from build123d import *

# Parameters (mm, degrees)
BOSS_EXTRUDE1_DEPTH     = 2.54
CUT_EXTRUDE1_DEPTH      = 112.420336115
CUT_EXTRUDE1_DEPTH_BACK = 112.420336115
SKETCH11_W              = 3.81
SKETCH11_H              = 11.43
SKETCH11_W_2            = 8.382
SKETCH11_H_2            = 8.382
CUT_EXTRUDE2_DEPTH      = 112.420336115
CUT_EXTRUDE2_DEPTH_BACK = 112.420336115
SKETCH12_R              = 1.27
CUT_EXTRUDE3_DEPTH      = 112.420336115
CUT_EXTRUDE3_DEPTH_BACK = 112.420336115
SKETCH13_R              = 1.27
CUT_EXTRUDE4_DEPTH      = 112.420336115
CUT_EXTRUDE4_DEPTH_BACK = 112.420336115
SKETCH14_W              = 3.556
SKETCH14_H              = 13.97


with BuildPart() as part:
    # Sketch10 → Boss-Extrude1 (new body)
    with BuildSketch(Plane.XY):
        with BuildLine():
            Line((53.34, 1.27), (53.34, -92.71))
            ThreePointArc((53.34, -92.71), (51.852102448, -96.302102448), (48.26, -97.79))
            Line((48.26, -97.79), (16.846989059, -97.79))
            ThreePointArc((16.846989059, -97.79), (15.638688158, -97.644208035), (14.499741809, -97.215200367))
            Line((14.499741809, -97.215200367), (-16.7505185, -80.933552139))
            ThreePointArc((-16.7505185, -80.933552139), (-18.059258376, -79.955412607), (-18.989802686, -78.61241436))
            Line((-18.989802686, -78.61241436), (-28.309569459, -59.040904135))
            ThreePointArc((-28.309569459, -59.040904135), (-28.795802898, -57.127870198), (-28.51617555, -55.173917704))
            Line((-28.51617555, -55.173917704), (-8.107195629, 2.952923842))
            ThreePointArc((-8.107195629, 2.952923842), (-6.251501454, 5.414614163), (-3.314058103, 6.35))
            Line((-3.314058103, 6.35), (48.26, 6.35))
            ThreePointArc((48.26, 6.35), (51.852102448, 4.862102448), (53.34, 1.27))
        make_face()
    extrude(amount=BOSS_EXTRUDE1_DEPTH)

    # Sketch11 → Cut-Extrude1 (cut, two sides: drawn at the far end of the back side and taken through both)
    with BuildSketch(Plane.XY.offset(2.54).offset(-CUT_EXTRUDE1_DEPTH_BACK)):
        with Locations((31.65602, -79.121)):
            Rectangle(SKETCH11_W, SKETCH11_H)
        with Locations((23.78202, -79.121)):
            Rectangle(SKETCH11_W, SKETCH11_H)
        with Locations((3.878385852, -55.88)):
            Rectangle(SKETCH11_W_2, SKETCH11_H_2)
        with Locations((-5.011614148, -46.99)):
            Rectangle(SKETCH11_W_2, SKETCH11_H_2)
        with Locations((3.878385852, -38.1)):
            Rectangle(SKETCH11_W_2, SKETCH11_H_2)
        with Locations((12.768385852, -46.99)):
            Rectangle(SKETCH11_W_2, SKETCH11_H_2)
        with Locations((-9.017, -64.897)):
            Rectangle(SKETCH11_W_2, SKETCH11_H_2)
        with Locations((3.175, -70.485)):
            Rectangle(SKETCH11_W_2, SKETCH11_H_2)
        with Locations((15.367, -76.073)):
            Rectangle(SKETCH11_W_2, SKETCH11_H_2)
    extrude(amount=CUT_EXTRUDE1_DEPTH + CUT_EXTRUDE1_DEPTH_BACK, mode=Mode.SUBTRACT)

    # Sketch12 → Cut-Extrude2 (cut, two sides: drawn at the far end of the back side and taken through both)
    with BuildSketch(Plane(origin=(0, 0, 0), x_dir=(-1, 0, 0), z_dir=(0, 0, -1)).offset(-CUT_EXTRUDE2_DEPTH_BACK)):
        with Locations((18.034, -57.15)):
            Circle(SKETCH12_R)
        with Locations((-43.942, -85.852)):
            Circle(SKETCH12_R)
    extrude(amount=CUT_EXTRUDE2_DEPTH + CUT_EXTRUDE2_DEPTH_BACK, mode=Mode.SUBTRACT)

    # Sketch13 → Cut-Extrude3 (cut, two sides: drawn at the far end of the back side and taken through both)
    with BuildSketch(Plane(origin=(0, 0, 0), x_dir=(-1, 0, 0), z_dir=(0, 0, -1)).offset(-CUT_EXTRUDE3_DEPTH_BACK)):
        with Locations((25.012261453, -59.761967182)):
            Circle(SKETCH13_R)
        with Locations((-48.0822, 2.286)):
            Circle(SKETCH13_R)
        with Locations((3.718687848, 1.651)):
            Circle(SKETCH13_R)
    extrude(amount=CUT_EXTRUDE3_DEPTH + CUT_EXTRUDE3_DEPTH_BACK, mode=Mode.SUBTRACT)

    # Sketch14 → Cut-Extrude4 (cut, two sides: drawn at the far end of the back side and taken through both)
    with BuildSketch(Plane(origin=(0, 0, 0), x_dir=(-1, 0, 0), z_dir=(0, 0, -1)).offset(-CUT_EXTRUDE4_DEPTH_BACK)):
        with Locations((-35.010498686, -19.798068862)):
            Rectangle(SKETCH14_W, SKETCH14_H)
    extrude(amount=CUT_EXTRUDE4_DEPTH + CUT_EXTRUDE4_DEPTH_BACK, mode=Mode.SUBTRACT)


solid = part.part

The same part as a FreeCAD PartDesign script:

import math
import FreeCAD as App
import Part
import Sketcher
from FreeCAD import Vector
Q = App.Units.Quantity


def add_polygon(sketch, points):
    """Adds a closed chain of lines whose ends are joined by coincident constraints."""
    first, n = sketch.GeometryCount, len(points)
    for a, b in zip(points, points[1:] + points[:1]):
        sketch.addGeometry(Part.LineSegment(App.Vector(*a, 0), App.Vector(*b, 0)), False)
    for i in range(n):
        sketch.addConstraint(Sketcher.Constraint("Coincident", first + i, 2, first + (i + 1) % n, 1))

doc = App.newDocument("Part")
body = doc.addObject("PartDesign::Body", "Body")

# Sketch on XY plane
sketch1 = body.newObject("Sketcher::SketchObject", "Sketch")
sketch1.AttachmentSupport = (doc.getObject("XY_Plane"), [""])
sketch1.MapMode = "FlatFace"
sketch1.addGeometry(Part.LineSegment(Vector(53.3, -92.7, 0), Vector(53.3, 1.3, 0)), False)
sketch1.addGeometry(Part.ArcOfCircle(Part.Circle(Vector(48.3, 1.3, 0), Vector(0, 0, 1), 5.1), math.radians(0), math.radians(90)), False)
sketch1.addGeometry(Part.LineSegment(Vector(48.3, 6.3, 0), Vector(-3.3, 6.3, 0)), False)
sketch1.addGeometry(Part.ArcOfCircle(Part.Circle(Vector(-3.3, 1.3, 0), Vector(0, 0, 1), 5.1), math.radians(90), math.radians(161)), False)
sketch1.addGeometry(Part.LineSegment(Vector(-8.1, 3, 0), Vector(-28.5, -55.2, 0)), False)
sketch1.addGeometry(Part.ArcOfCircle(Part.Circle(Vector(-23.7, -56.9, 0), Vector(0, 0, 1), 5.1), math.radians(161), math.radians(205)), False)
sketch1.addGeometry(Part.LineSegment(Vector(-28.3, -59, 0), Vector(-19, -78.6, 0)), False)
sketch1.addGeometry(Part.ArcOfCircle(Part.Circle(Vector(-14.4, -76.4, 0), Vector(0, 0, 1), 5.1), math.radians(-155), math.radians(-118)), False)
sketch1.addGeometry(Part.LineSegment(Vector(-16.8, -80.9, 0), Vector(14.5, -97.2, 0)), False)
sketch1.addGeometry(Part.ArcOfCircle(Part.Circle(Vector(16.8, -92.7, 0), Vector(0, 0, 1), 5.1), math.radians(-118), math.radians(-90)), False)
sketch1.addGeometry(Part.LineSegment(Vector(16.8, -97.8, 0), Vector(48.3, -97.8, 0)), False)
sketch1.addGeometry(Part.ArcOfCircle(Part.Circle(Vector(48.3, -92.7, 0), Vector(0, 0, 1), 5.1), math.radians(-90), math.radians(0)), False)
sketch1.addConstraint(Sketcher.Constraint("Tangent", 0, 2, 1, 1))
sketch1.addConstraint(Sketcher.Constraint("Tangent", 1, 2, 2, 1))
sketch1.addConstraint(Sketcher.Constraint("Tangent", 2, 2, 3, 1))
sketch1.addConstraint(Sketcher.Constraint("Tangent", 3, 2, 4, 1))
sketch1.addConstraint(Sketcher.Constraint("Tangent", 4, 2, 5, 1))
sketch1.addConstraint(Sketcher.Constraint("Tangent", 5, 2, 6, 1))
sketch1.addConstraint(Sketcher.Constraint("Tangent", 6, 2, 7, 1))
sketch1.addConstraint(Sketcher.Constraint("Tangent", 7, 2, 8, 1))
sketch1.addConstraint(Sketcher.Constraint("Tangent", 8, 2, 9, 1))
sketch1.addConstraint(Sketcher.Constraint("Tangent", 9, 2, 10, 1))
sketch1.addConstraint(Sketcher.Constraint("Tangent", 10, 2, 11, 1))
sketch1.addConstraint(Sketcher.Constraint("Tangent", 11, 2, 0, 1))
sketch1.addConstraint(Sketcher.Constraint("Vertical", 0))
sketch1.addConstraint(Sketcher.Constraint("Horizontal", 2))
sketch1.addConstraint(Sketcher.Constraint("Horizontal", 10))
sketch1.addConstraint(Sketcher.Constraint("Equal", 1, 3))
sketch1.addConstraint(Sketcher.Constraint("Equal", 3, 5))
sketch1.addConstraint(Sketcher.Constraint("Equal", 5, 7))
sketch1.addConstraint(Sketcher.Constraint("Equal", 7, 9))
sketch1.addConstraint(Sketcher.Constraint("Equal", 9, 11))
sketch1.addConstraint(Sketcher.Constraint("Radius", 1, Q("0.2 in")))
sketch1.addConstraint(Sketcher.Constraint("DistanceY", 0, 1, 0, 2, Q("3.7 in")))
sketch1.addConstraint(Sketcher.Constraint("DistanceX", -1, 1, 1, 3, Q("1.9 in")))
sketch1.addConstraint(Sketcher.Constraint("DistanceY", -1, 1, 1, 3, Q("0.05 in")))
sketch1.addConstraint(Sketcher.Constraint("DistanceX", 2, 2, 2, 1, 51.574058))
sketch1.addConstraint(Sketcher.Constraint("DistanceX", 10, 1, 10, 2, 31.413011))
sketch1.addConstraint(Sketcher.Constraint("DistanceY", 8, 2, -1, 1, 97.2152))
sketch1.addConstraint(Sketcher.Constraint("DistanceX", 5, 2, 7, 3, 13.906298))
sketch1.addConstraint(Sketcher.Constraint("Distance", 4, 61.60565))
sketch1.addConstraint(Sketcher.Constraint("Distance", 8, 35.23735))
pad1 = body.newObject("PartDesign::Pad", "Pad")
pad1.Profile = sketch1
pad1.Length = Q("0.1 in")

# Sketch on XY plane
sketch2 = body.newObject("Sketcher::SketchObject", "Sketch001")
sketch2.AttachmentSupport = (doc.getObject("XY_Plane"), [""])
sketch2.MapMode = "FlatFace"
sketch2.AttachmentOffset = App.Placement(Vector(0, 0, 0.1 * 25.4), App.Rotation())
add_polygon(sketch2, [(29.8, -73.4), (29.8, -84.8), (33.6, -84.8), (33.6, -73.4)])  # lines 0-3
add_polygon(sketch2, [(21.9, -73.4), (21.9, -84.8), (25.7, -84.8), (25.7, -73.4)])  # lines 4-7
add_polygon(sketch2, [(-0.3, -51.7), (-0.3, -60.1), (8.1, -60.1), (8.1, -51.7)])  # lines 8-11
add_polygon(sketch2, [(-9.2, -42.8), (-9.2, -51.2), (-0.8, -51.2), (-0.8, -42.8)])  # lines 12-15
add_polygon(sketch2, [(-0.3, -33.9), (-0.3, -42.3), (8.1, -42.3), (8.1, -33.9)])  # lines 16-19
add_polygon(sketch2, [(8.6, -42.8), (8.6, -51.2), (17, -51.2), (17, -42.8)])  # lines 20-23
add_polygon(sketch2, [(-13.2, -60.7), (-13.2, -69.1), (-4.8, -69.1), (-4.8, -60.7)])  # lines 24-27
add_polygon(sketch2, [(-1, -66.3), (-1, -74.7), (7.4, -74.7), (7.4, -66.3)])  # lines 28-31
add_polygon(sketch2, [(11.2, -71.9), (11.2, -80.3), (19.6, -80.3), (19.6, -71.9)])  # lines 32-35
sketch2.addConstraint(Sketcher.Constraint("Vertical", 0))
sketch2.addConstraint(Sketcher.Constraint("Horizontal", 1))
sketch2.addConstraint(Sketcher.Constraint("Vertical", 2))
sketch2.addConstraint(Sketcher.Constraint("Horizontal", 3))
sketch2.addConstraint(Sketcher.Constraint("Vertical", 4))
sketch2.addConstraint(Sketcher.Constraint("Horizontal", 5))
sketch2.addConstraint(Sketcher.Constraint("Vertical", 6))
sketch2.addConstraint(Sketcher.Constraint("Horizontal", 7))
sketch2.addConstraint(Sketcher.Constraint("Vertical", 8))
sketch2.addConstraint(Sketcher.Constraint("Horizontal", 9))
sketch2.addConstraint(Sketcher.Constraint("Vertical", 10))
sketch2.addConstraint(Sketcher.Constraint("Horizontal", 11))
sketch2.addConstraint(Sketcher.Constraint("Vertical", 12))
sketch2.addConstraint(Sketcher.Constraint("Horizontal", 13))
sketch2.addConstraint(Sketcher.Constraint("Vertical", 14))
sketch2.addConstraint(Sketcher.Constraint("Horizontal", 15))
sketch2.addConstraint(Sketcher.Constraint("Vertical", 16))
sketch2.addConstraint(Sketcher.Constraint("Horizontal", 17))
sketch2.addConstraint(Sketcher.Constraint("Vertical", 18))
sketch2.addConstraint(Sketcher.Constraint("Horizontal", 19))
sketch2.addConstraint(Sketcher.Constraint("Vertical", 20))
sketch2.addConstraint(Sketcher.Constraint("Horizontal", 21))
sketch2.addConstraint(Sketcher.Constraint("Vertical", 22))
sketch2.addConstraint(Sketcher.Constraint("Horizontal", 23))
sketch2.addConstraint(Sketcher.Constraint("Vertical", 24))
sketch2.addConstraint(Sketcher.Constraint("Horizontal", 25))
sketch2.addConstraint(Sketcher.Constraint("Vertical", 26))
sketch2.addConstraint(Sketcher.Constraint("Horizontal", 27))
sketch2.addConstraint(Sketcher.Constraint("Vertical", 28))
sketch2.addConstraint(Sketcher.Constraint("Horizontal", 29))
sketch2.addConstraint(Sketcher.Constraint("Vertical", 30))
sketch2.addConstraint(Sketcher.Constraint("Horizontal", 31))
sketch2.addConstraint(Sketcher.Constraint("Vertical", 32))
sketch2.addConstraint(Sketcher.Constraint("Horizontal", 33))
sketch2.addConstraint(Sketcher.Constraint("Vertical", 34))
sketch2.addConstraint(Sketcher.Constraint("Horizontal", 35))
sketch2.addConstraint(Sketcher.Constraint("Horizontal", 1, 2, 4, 2))
sketch2.addConstraint(Sketcher.Constraint("Horizontal", 3, 2, 6, 2))
sketch2.addConstraint(Sketcher.Constraint("Horizontal", 13, 2, 20, 2))
sketch2.addConstraint(Sketcher.Constraint("Horizontal", 15, 2, 22, 2))
sketch2.addConstraint(Sketcher.Constraint("Vertical", 11, 2, 16, 2))
sketch2.addConstraint(Sketcher.Constraint("Vertical", 10, 2, 17, 2))
sketch2.addConstraint(Sketcher.Constraint("Equal", 3, 5))
sketch2.addConstraint(Sketcher.Constraint("Equal", 11, 13))
sketch2.addConstraint(Sketcher.Constraint("Equal", 19, 21))
sketch2.addConstraint(Sketcher.Constraint("Equal", 23, 25))
sketch2.addConstraint(Sketcher.Constraint("Equal", 27, 29))
sketch2.addConstraint(Sketcher.Constraint("Equal", 31, 33))
sketch2.addConstraint(Sketcher.Constraint("Equal", 35, 8))
sketch2.addConstraint(Sketcher.Constraint("Equal", 10, 12))
sketch2.addConstraint(Sketcher.Constraint("Equal", 14, 16))
sketch2.addConstraint(Sketcher.Constraint("Equal", 22, 24))
sketch2.addConstraint(Sketcher.Constraint("Equal", 26, 28))
sketch2.addConstraint(Sketcher.Constraint("Equal", 30, 32))
sketch2.addConstraint(Sketcher.Constraint("DistanceX", 1, 1, 1, 2, Q("0.15 in")))
sketch2.addConstraint(Sketcher.Constraint("DistanceX", 9, 1, 9, 2, Q("0.33 in")))
sketch2.addConstraint(Sketcher.Constraint("DistanceY", 0, 2, 0, 1, Q("0.45 in")))
sketch2.addConstraint(Sketcher.Constraint("DistanceY", 10, 2, 18, 2, Q("0.7 in")))
sketch2.addConstraint(Sketcher.Constraint("DistanceY", 0, 2, -1, 1, Q("3.34 in")))
sketch2.addConstraint(Sketcher.Constraint("DistanceX", 24, 2, -1, 1, Q("0.52 in")))
sketch2.addConstraint(Sketcher.Constraint("DistanceY", 24, 2, -1, 1, Q("2.72 in")))
sketch2.addConstraint(Sketcher.Constraint("DistanceX", 28, 2, -1, 1, Q("0.04 in")))
sketch2.addConstraint(Sketcher.Constraint("DistanceY", 28, 2, -1, 1, Q("2.94 in")))
sketch2.addConstraint(Sketcher.Constraint("DistanceX", -1, 1, 32, 2, Q("0.44 in")))
sketch2.addConstraint(Sketcher.Constraint("DistanceY", 32, 2, -1, 1, Q("3.16 in")))
sketch2.addConstraint(Sketcher.Constraint("DistanceX", 4, 2, 0, 2, Q("0.31 in")))
sketch2.addConstraint(Sketcher.Constraint("DistanceX", 12, 2, 11, 2, Q("0.35 in")))
sketch2.addConstraint(Sketcher.Constraint("DistanceY", 11, 2, 12, 2, Q("0.02 in")))
sketch2.addConstraint(Sketcher.Constraint("DistanceX", 10, 2, 20, 2, Q("0.02 in")))
sketch2.addConstraint(Sketcher.Constraint("DistanceY", 8, 2, -1, 1, Q("2.365 in")))
sketch2.addConstraint(Sketcher.Constraint("DistanceX", -1, 1, 0, 2, Q("1.1713 in")))
sketch2.addConstraint(Sketcher.Constraint("DistanceX", 8, 2, -1, 1, 0.312614))
pocket1 = body.newObject("PartDesign::Pocket", "Pocket")
pocket1.Profile = sketch2
pocket1.Type = "ThroughAll"
pocket1.Midplane = True

# Sketch on XY plane
sketch3 = body.newObject("Sketcher::SketchObject", "Sketch002")
sketch3.AttachmentSupport = (doc.getObject("XY_Plane"), [""])
sketch3.MapMode = "FlatFace"
sketch3.addGeometry(Part.Circle(Vector(-18, -57.1, 0), Vector(0, 0, 1), 1.3), False)
sketch3.addGeometry(Part.Circle(Vector(43.9, -85.9, 0), Vector(0, 0, 1), 1.3), False)
sketch3.addConstraint(Sketcher.Constraint("Equal", 0, 1))
sketch3.addConstraint(Sketcher.Constraint("Diameter", 0, Q("0.1 in")))
sketch3.addConstraint(Sketcher.Constraint("DistanceX", 0, 3, -1, 1, Q("0.71 in")))
sketch3.addConstraint(Sketcher.Constraint("DistanceY", 0, 3, -1, 1, Q("2.25 in")))
sketch3.addConstraint(Sketcher.Constraint("DistanceX", -1, 1, 1, 3, Q("1.73 in")))
sketch3.addConstraint(Sketcher.Constraint("DistanceY", 1, 3, -1, 1, Q("3.38 in")))
pocket2 = body.newObject("PartDesign::Pocket", "Pocket001")
pocket2.Profile = sketch3
pocket2.Type = "ThroughAll"
pocket2.Midplane = True

# Sketch on XY plane
sketch4 = body.newObject("Sketcher::SketchObject", "Sketch003")
sketch4.AttachmentSupport = (doc.getObject("XY_Plane"), [""])
sketch4.MapMode = "FlatFace"
sketch4.addGeometry(Part.Circle(Vector(-25, -59.8, 0), Vector(0, 0, 1), 1.3), False)
sketch4.addGeometry(Part.Circle(Vector(48.1, 2.3, 0), Vector(0, 0, 1), 1.3), False)
sketch4.addGeometry(Part.Circle(Vector(-3.7, 1.7, 0), Vector(0, 0, 1), 1.3), False)
sketch4.addConstraint(Sketcher.Constraint("Equal", 0, 1))
sketch4.addConstraint(Sketcher.Constraint("Equal", 1, 2))
sketch4.addConstraint(Sketcher.Constraint("Diameter", 0, Q("0.1 in")))
sketch4.addConstraint(Sketcher.Constraint("DistanceY", -1, 1, 1, 3, Q("0.09 in")))
sketch4.addConstraint(Sketcher.Constraint("DistanceX", -1, 1, 1, 3, Q("1.893 in")))
sketch4.addConstraint(Sketcher.Constraint("DistanceY", -1, 1, 2, 3, Q("0.065 in")))
sketch4.addConstraint(Sketcher.Constraint("DistanceX", 0, 3, -1, 1, 25.012261))
sketch4.addConstraint(Sketcher.Constraint("DistanceY", 0, 3, -1, 1, 59.761967))
sketch4.addConstraint(Sketcher.Constraint("DistanceX", 2, 3, -1, 1, 3.718688))
pocket3 = body.newObject("PartDesign::Pocket", "Pocket002")
pocket3.Profile = sketch4
pocket3.Type = "ThroughAll"
pocket3.Midplane = True

# Sketch on XY plane
sketch5 = body.newObject("Sketcher::SketchObject", "Sketch004")
sketch5.AttachmentSupport = (doc.getObject("XY_Plane"), [""])
sketch5.MapMode = "FlatFace"
add_polygon(sketch5, [(36.8, -12.8), (36.8, -26.8), (33.2, -26.8), (33.2, -12.8)])  # lines 0-3
sketch5.addConstraint(Sketcher.Constraint("Vertical", 0))
sketch5.addConstraint(Sketcher.Constraint("Horizontal", 1))
sketch5.addConstraint(Sketcher.Constraint("Vertical", 2))
sketch5.addConstraint(Sketcher.Constraint("Horizontal", 3))
sketch5.addConstraint(Sketcher.Constraint("DistanceX", 1, 2, 1, 1, Q("0.14 in")))
sketch5.addConstraint(Sketcher.Constraint("DistanceY", 0, 2, 0, 1, Q("0.55 in")))
sketch5.addConstraint(Sketcher.Constraint("DistanceX", -1, 1, 0, 2, 36.788499))
sketch5.addConstraint(Sketcher.Constraint("DistanceY", 0, 2, -1, 1, 26.783069))
pocket4 = body.newObject("PartDesign::Pocket", "Pocket003")
pocket4.Profile = sketch5
pocket4.Type = "ThroughAll"
pocket4.Midplane = True

doc.recompute()
